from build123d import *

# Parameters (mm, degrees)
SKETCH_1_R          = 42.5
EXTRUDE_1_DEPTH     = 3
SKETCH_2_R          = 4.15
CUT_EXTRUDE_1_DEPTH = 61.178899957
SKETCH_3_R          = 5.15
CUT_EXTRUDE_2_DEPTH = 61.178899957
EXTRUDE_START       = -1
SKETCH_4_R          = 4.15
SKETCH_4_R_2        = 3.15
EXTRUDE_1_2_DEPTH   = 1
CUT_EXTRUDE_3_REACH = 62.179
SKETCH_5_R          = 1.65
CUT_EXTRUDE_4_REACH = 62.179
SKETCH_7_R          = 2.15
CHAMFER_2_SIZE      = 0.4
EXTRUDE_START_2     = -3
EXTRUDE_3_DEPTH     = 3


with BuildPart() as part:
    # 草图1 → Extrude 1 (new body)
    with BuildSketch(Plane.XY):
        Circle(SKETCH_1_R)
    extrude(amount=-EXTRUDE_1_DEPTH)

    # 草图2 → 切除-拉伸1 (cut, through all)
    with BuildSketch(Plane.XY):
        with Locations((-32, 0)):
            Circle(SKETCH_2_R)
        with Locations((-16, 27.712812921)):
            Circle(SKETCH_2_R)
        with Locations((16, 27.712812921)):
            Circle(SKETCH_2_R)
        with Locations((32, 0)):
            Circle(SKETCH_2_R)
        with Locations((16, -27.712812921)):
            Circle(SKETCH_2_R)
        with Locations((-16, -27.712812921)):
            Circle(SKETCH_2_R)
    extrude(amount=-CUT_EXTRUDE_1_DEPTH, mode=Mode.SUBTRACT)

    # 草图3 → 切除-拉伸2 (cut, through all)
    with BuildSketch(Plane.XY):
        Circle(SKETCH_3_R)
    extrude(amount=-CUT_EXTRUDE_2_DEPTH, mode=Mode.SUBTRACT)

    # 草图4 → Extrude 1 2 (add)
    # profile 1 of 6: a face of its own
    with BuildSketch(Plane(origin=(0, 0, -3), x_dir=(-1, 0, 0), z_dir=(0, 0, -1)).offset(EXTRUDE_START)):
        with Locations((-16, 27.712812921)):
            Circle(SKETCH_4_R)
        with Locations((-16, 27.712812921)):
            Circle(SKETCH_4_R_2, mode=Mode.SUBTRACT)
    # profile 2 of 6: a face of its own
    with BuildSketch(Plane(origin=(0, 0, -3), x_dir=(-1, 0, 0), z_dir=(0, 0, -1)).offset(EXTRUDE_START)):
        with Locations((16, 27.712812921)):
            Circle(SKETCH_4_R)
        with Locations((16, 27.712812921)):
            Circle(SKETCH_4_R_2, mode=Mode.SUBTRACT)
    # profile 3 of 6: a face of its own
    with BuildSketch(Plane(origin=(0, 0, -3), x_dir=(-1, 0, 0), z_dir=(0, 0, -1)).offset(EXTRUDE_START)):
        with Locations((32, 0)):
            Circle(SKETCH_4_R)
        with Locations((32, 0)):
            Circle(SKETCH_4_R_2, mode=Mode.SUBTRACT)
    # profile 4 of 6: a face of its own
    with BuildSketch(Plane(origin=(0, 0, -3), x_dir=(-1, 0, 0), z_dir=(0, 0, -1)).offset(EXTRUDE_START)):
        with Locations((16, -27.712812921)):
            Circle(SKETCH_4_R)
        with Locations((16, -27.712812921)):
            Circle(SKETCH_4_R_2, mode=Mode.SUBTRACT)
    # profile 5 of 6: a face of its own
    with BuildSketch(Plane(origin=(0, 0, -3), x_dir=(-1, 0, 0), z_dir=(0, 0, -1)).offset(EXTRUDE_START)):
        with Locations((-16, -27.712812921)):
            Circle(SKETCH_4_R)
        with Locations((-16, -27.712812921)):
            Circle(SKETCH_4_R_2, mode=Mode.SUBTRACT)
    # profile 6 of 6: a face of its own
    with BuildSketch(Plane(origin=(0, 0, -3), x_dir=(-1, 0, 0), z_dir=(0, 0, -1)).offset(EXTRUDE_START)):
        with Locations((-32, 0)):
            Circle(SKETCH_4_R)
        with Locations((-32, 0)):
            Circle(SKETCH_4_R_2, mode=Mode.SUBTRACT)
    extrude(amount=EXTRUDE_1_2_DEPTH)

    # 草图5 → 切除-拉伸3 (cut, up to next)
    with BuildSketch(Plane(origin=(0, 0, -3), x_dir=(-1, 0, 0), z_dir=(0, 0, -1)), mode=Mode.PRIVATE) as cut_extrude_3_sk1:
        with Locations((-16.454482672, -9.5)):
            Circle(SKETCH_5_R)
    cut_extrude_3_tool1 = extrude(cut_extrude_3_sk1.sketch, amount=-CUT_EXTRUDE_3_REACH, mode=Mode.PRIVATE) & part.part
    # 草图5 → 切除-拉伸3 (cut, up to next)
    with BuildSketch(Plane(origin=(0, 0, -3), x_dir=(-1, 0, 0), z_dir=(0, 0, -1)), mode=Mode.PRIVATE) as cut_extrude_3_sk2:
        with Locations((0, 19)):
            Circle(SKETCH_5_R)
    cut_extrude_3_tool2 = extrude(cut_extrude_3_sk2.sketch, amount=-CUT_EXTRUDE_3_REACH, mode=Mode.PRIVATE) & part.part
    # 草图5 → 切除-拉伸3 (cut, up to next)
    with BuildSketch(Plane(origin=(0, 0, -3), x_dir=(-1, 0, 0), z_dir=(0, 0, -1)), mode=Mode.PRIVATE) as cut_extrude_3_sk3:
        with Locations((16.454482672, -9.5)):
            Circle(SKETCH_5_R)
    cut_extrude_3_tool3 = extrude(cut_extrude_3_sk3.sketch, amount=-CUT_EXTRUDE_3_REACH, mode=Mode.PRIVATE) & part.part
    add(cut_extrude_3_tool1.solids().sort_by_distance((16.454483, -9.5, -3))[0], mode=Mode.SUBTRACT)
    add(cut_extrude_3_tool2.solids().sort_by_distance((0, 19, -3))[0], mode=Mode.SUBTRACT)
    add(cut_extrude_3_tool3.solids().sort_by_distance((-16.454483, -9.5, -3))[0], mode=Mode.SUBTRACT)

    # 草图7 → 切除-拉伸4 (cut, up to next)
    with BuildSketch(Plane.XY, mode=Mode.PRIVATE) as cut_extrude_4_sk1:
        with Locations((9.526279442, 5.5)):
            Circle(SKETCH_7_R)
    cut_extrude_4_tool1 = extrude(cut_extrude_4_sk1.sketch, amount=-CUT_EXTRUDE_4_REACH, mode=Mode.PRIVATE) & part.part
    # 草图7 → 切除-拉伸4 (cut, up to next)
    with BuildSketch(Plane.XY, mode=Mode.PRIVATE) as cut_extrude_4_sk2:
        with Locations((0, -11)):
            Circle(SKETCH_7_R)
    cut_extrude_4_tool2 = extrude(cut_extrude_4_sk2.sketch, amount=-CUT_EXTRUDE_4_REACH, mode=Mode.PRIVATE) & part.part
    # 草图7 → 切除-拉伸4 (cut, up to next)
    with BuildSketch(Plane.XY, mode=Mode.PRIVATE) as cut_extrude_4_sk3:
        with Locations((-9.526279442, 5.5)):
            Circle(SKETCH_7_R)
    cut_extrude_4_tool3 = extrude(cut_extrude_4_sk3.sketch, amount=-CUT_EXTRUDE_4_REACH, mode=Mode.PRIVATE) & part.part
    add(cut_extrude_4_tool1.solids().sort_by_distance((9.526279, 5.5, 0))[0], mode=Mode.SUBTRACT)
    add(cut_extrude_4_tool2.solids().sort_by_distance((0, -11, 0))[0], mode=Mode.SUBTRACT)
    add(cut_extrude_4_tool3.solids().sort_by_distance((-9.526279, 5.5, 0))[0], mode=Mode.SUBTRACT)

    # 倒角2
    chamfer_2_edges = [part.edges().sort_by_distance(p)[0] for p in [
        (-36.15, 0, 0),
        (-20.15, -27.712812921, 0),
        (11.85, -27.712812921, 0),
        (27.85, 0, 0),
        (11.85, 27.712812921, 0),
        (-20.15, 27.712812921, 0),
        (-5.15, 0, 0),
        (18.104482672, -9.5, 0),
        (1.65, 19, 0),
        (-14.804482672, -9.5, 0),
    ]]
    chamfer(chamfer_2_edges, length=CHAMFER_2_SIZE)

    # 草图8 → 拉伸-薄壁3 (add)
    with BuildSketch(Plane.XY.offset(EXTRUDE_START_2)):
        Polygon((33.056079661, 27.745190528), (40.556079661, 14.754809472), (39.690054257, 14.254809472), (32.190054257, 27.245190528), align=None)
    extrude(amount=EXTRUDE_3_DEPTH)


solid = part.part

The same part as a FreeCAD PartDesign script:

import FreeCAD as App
import Part
import Sketcher
Q = App.Units.Quantity


def edges_at(feature, points):
    """Names of the edges that pass closest to the given points."""
    edges = feature.Shape.Edges
    near = lambda p: min(range(len(edges)), key=lambda i: edges[i].distToShape(Part.Vertex(*p))[0])
    return sorted({f"Edge{near(p) + 1}" for p in points})


def add_polygon(sketch, points):
    """Adds a closed chain of lines whose ends are joined by coincident constraints."""
    first, n = sketch.GeometryCount, len(points)
    for a, b in zip(points, points[1:] + points[:1]):
        sketch.addGeometry(Part.LineSegment(App.Vector(*a, 0), App.Vector(*b, 0)), False)
    for i in range(n):
        sketch.addConstraint(Sketcher.Constraint("Coincident", first + i, 2, first + (i + 1) % n, 1))

doc = App.newDocument("Part")
body = doc.addObject("PartDesign::Body", "Body")

# Sketch on XY plane
sketch1 = body.newObject("Sketcher::SketchObject", "Sketch")
sketch1.AttachmentSupport = (doc.getObject("XY_Plane"), [""])
sketch1.MapMode = "FlatFace"
sketch1.addGeometry(Part.Circle(App.Vector(0, 0, 0), App.Vector(0, 0, 1), 42), False)
sketch1.addConstraint([
    Sketcher.Constraint("Coincident", 0, 3, -1, 1),
    Sketcher.Constraint("Diameter", 0, Q("85 mm")),
])
pad1 = body.newObject("PartDesign::Pad", "Pad")
pad1.Profile = sketch1
pad1.Length = 3
pad1.Reversed = True

# Sketch on XY plane
sketch2 = body.newObject("Sketcher::SketchObject", "Sketch001")
sketch2.AttachmentSupport = (doc.getObject("XY_Plane"), [""])
sketch2.MapMode = "FlatFace"
sketch2.addGeometry([
    Part.Circle(App.Vector(-32, 0, 0), App.Vector(0, 0, 1), 4.2),  # 0
    Part.Circle(App.Vector(-16, 27.7, 0), App.Vector(0, 0, 1), 4.2),  # 1
    Part.Circle(App.Vector(16, 27.7, 0), App.Vector(0, 0, 1), 4.2),  # 2
    Part.Circle(App.Vector(32, 0, 0), App.Vector(0, 0, 1), 4.2),  # 3
    Part.Circle(App.Vector(16, -27.7, 0), App.Vector(0, 0, 1), 4.2),  # 4
    Part.Circle(App.Vector(-16, -27.7, 0), App.Vector(0, 0, 1), 4.2),  # 5
], False)
sketch2.addConstraint([
    Sketcher.Constraint("Equal", 0, 1),
    Sketcher.Constraint("Equal", 1, 2),
    Sketcher.Constraint("Equal", 2, 3),
    Sketcher.Constraint("Equal", 3, 4),
    Sketcher.Constraint("Equal", 4, 5),
    Sketcher.Constraint("Symmetric", 0, 3, 3, 3, -1, 1),
    Sketcher.Constraint("Symmetric", 1, 3, 4, 3, -1, 1),
    Sketcher.Constraint("Symmetric", 2, 3, 5, 3, -1, 1),
    Sketcher.Constraint("Symmetric", 1, 3, 2, 3, -2),
    Sketcher.Constraint("PointOnObject", 0, 3, -1),
    Sketcher.Constraint("Diameter", 0, Q("8.3 mm")),
    Sketcher.Constraint("DistanceX", 0, 3, -1, 1, Q("32 mm")),
    Sketcher.Constraint("DistanceX", 1, 3, -1, 1, Q("16 mm")),
    Sketcher.Constraint("DistanceY", -1, 1, 1, 3, Q("27.712813 mm")),
])
pocket1 = body.newObject("PartDesign::Pocket", "Pocket")
pocket1.Profile = sketch2
pocket1.Type = "ThroughAll"

# Sketch on XY plane
sketch3 = body.newObject("Sketcher::SketchObject", "Sketch002")
sketch3.AttachmentSupport = (doc.getObject("XY_Plane"), [""])
sketch3.MapMode = "FlatFace"
sketch3.addGeometry(Part.Circle(App.Vector(0, 0, 0), App.Vector(0, 0, 1), 5), False)
sketch3.addConstraint([
    Sketcher.Constraint("Coincident", 0, 3, -1, 1),
    Sketcher.Constraint("Diameter", 0, Q("10.3 mm")),
])
pocket2 = body.newObject("PartDesign::Pocket", "Pocket001")
pocket2.Profile = sketch3
pocket2.Type = "ThroughAll"

# Sketch on XY plane
sketch4 = body.newObject("Sketcher::SketchObject", "Sketch003")
sketch4.AttachmentSupport = (doc.getObject("XY_Plane"), [""])
sketch4.MapMode = "FlatFace"
sketch4.AttachmentOffset = App.Placement(App.Vector(0, 0, -2), App.Rotation())
sketch4.addGeometry([
    Part.Circle(App.Vector(16, 27.7, 0), App.Vector(0, 0, 1), 4.2),  # 0
    Part.Circle(App.Vector(16, 27.7, 0), App.Vector(0, 0, 1), 3.1),  # 1
    Part.Circle(App.Vector(-16, 27.7, 0), App.Vector(0, 0, 1), 4.2),  # 2
    Part.Circle(App.Vector(-16, 27.7, 0), App.Vector(0, 0, 1), 3.1),  # 3
    Part.Circle(App.Vector(-32, 0, 0), App.Vector(0, 0, 1), 4.2),  # 4
    Part.Circle(App.Vector(-32, 0, 0), App.Vector(0, 0, 1), 3.1),  # 5
    Part.Circle(App.Vector(-16, -27.7, 0), App.Vector(0, 0, 1), 4.2),  # 6
    Part.Circle(App.Vector(-16, -27.7, 0), App.Vector(0, 0, 1), 3.1),  # 7
    Part.Circle(App.Vector(16, -27.7, 0), App.Vector(0, 0, 1), 4.2),  # 8
    Part.Circle(App.Vector(16, -27.7, 0), App.Vector(0, 0, 1), 3.1),  # 9
    Part.Circle(App.Vector(32, 0, 0), App.Vector(0, 0, 1), 4.2),  # 10
    Part.Circle(App.Vector(32, 0, 0), App.Vector(0, 0, 1), 3.1),  # 11
], False)
sketch4.addConstraint([
    Sketcher.Constraint("Coincident", 1, 3, 0, 3),
    Sketcher.Constraint("Coincident", 3, 3, 2, 3),
    Sketcher.Constraint("Coincident", 5, 3, 4, 3),
    Sketcher.Constraint("Coincident", 7, 3, 6, 3),
    Sketcher.Constraint("Coincident", 9, 3, 8, 3),
    Sketcher.Constraint("Coincident", 11, 3, 10, 3),
    Sketcher.Constraint("Equal", 0, 2),
    Sketcher.Constraint("Equal", 1, 3),
    Sketcher.Constraint("Equal", 2, 4),
    Sketcher.Constraint("Equal", 3, 5),
    Sketcher.Constraint("Equal", 4, 6),
    Sketcher.Constraint("Equal", 5, 7),
    Sketcher.Constraint("Equal", 6, 8),
    Sketcher.Constraint("Equal", 7, 9),
    Sketcher.Constraint("Equal", 8, 10),
    Sketcher.Constraint("Equal", 9, 11),
    Sketcher.Constraint("Symmetric", 0, 3, 6, 3, -1, 1),
    Sketcher.Constraint("Symmetric", 2, 3, 8, 3, -1, 1),
    Sketcher.Constraint("Symmetric", 4, 3, 10, 3, -1, 1),
    Sketcher.Constraint("Symmetric", 0, 3, 2, 3, -2),
    Sketcher.Constraint("PointOnObject", 4, 3, -1),
    Sketcher.Constraint("Diameter", 0, Q("8.3 mm")),
    Sketcher.Constraint("Diameter", 1, Q("6.3 mm")),
    Sketcher.Constraint("DistanceX", -1, 1, 0, 3, Q("16 mm")),
    Sketcher.Constraint("DistanceX", 4, 3, -1, 1, Q("32 mm")),
    Sketcher.Constraint("DistanceY", -1, 1, 0, 3, Q("27.712813 mm")),
])
pad2 = body.newObject("PartDesign::Pad", "Pad001")
pad2.Profile = sketch4
pad2.Length = 1
pad2.Reversed = True

# Sketch on XY plane
sketch5 = body.newObject("Sketcher::SketchObject", "Sketch004")
sketch5.AttachmentSupport = (doc.getObject("XY_Plane"), [""])
sketch5.MapMode = "FlatFace"
sketch5.AttachmentOffset = App.Placement(App.Vector(0, 0, -3), App.Rotation())
sketch5.addGeometry(Part.Circle(App.Vector(16.5, -9.5, 0), App.Vector(0, 0, 1), 1.6), False)
sketch5.addConstraint([
    Sketcher.Constraint("Diameter", 0, Q("3.3 mm")),
    Sketcher.Constraint("DistanceY", 0, 3, -1, 1, Q("9.5 mm")),
    Sketcher.Constraint("DistanceX", -1, 1, 0, 3, Q("16.454483 mm")),
])
pocket3 = body.newObject("PartDesign::Pocket", "Pocket002")
pocket3.Profile = sketch5
pocket3.Type = "UpToFirst"
pocket3.Reversed = True

# Sketch on XY plane
sketch6 = body.newObject("Sketcher::SketchObject", "Sketch005")
sketch6.AttachmentSupport = (doc.getObject("XY_Plane"), [""])
sketch6.MapMode = "FlatFace"
sketch6.AttachmentOffset = App.Placement(App.Vector(0, 0, -3), App.Rotation())
sketch6.addGeometry(Part.Circle(App.Vector(0, 19, 0), App.Vector(0, 0, 1), 1.6), False)
sketch6.addConstraint([
    Sketcher.Constraint("PointOnObject", 0, 3, -2),
    Sketcher.Constraint("Diameter", 0, Q("3.3 mm")),
    Sketcher.Constraint("DistanceY", -1, 1, 0, 3, Q("19 mm")),
])
pocket4 = body.newObject("PartDesign::Pocket", "Pocket003")
pocket4.Profile = sketch6
pocket4.Type = "UpToFirst"
pocket4.Reversed = True

# Sketch on XY plane
sketch7 = body.newObject("Sketcher::SketchObject", "Sketch006")
sketch7.AttachmentSupport = (doc.getObject("XY_Plane"), [""])
sketch7.MapMode = "FlatFace"
sketch7.AttachmentOffset = App.Placement(App.Vector(0, 0, -3), App.Rotation())
sketch7.addGeometry(Part.Circle(App.Vector(-16.5, -9.5, 0), App.Vector(0, 0, 1), 1.6), False)
sketch7.addConstraint([
    Sketcher.Constraint("Diameter", 0, Q("3.3 mm")),
    Sketcher.Constraint("DistanceY", 0, 3, -1, 1, Q("9.5 mm")),
    Sketcher.Constraint("DistanceX", 0, 3, -1, 1, Q("16.454483 mm")),
])
pocket5 = body.newObject("PartDesign::Pocket", "Pocket004")
pocket5.Profile = sketch7
pocket5.Type = "UpToFirst"
pocket5.Reversed = True

# Sketch on XY plane
sketch8 = body.newObject("Sketcher::SketchObject", "Sketch007")
sketch8.AttachmentSupport = (doc.getObject("XY_Plane"), [""])
sketch8.MapMode = "FlatFace"
sketch8.addGeometry(Part.Circle(App.Vector(9.5, 5.5, 0), App.Vector(0, 0, 1), 2.1), False)
sketch8.addConstraint([
    Sketcher.Constraint("Diameter", 0, Q("4.3 mm")),
    Sketcher.Constraint("DistanceY", -1, 1, 0, 3, Q("5.5 mm")),
    Sketcher.Constraint("DistanceX", -1, 1, 0, 3, Q("9.526279 mm")),
])
pocket6 = body.newObject("PartDesign::Pocket", "Pocket005")
pocket6.Profile = sketch8
pocket6.Type = "UpToFirst"

# Sketch on XY plane
sketch9 = body.newObject("Sketcher::SketchObject", "Sketch008")
sketch9.AttachmentSupport = (doc.getObject("XY_Plane"), [""])
sketch9.MapMode = "FlatFace"
sketch9.addGeometry(Part.Circle(App.Vector(0, -11, 0), App.Vector(0, 0, 1), 2.1), False)
sketch9.addConstraint([
    Sketcher.Constraint("PointOnObject", 0, 3, -2),
    Sketcher.Constraint("Diameter", 0, Q("4.3 mm")),
    Sketcher.Constraint("DistanceY", 0, 3, -1, 1, Q("11 mm")),
])
pocket7 = body.newObject("PartDesign::Pocket", "Pocket006")
pocket7.Profile = sketch9
pocket7.Type = "UpToFirst"

# Sketch on XY plane
sketch10 = body.newObject("Sketcher::SketchObject", "Sketch009")
sketch10.AttachmentSupport = (doc.getObject("XY_Plane"), [""])
sketch10.MapMode = "FlatFace"
sketch10.addGeometry(Part.Circle(App.Vector(-9.5, 5.5, 0), App.Vector(0, 0, 1), 2.1), False)
sketch10.addConstraint([
    Sketcher.Constraint("Diameter", 0, Q("4.3 mm")),
    Sketcher.Constraint("DistanceY", -1, 1, 0, 3, Q("5.5 mm")),
    Sketcher.Constraint("DistanceX", 0, 3, -1, 1, Q("9.526279 mm")),
])
pocket8 = body.newObject("PartDesign::Pocket", "Pocket007")
pocket8.Profile = sketch10
pocket8.Type = "UpToFirst"
doc.recompute()

chamfer = body.newObject("PartDesign::Chamfer", "Chamfer")
chamfer.Base = (pocket8, edges_at(pocket8, [
    (-36.15, 0, 0),
    (-20.15, -27.713, 0),
    (11.85, -27.713, 0),
    (27.85, 0, 0),
    (11.85, 27.713, 0),
    (-20.15, 27.713, 0),
    (-5.15, 0, 0),
    (18.104, -9.5, 0),
    (1.65, 19, 0),
    (-14.804, -9.5, 0),
]))
chamfer.Size = 0.4

# Sketch on XY plane
sketch11 = body.newObject("Sketcher::SketchObject", "Sketch010")
sketch11.AttachmentSupport = (doc.getObject("XY_Plane"), [""])
sketch11.MapMode = "FlatFace"
sketch11.AttachmentOffset = App.Placement(App.Vector(0, 0, -3), App.Rotation())
add_polygon(sketch11, [(40.6, 14.8), (33.1, 27.7), (32.2, 27.2), (39.7, 14.3)])  # lines 0-3
sketch11.addConstraint([
    Sketcher.Constraint("Perpendicular", 0, 1),
    Sketcher.Constraint("Perpendicular", 1, 2),
    Sketcher.Constraint("Perpendicular", 2, 3),
    Sketcher.Constraint("Angle", 0, Q("120 deg")),
    Sketcher.Constraint("Distance", 0, Q("15 mm")),
    Sketcher.Constraint("Distance", 1, Q("1 mm")),
    Sketcher.Constraint("DistanceX", -1, 1, 0, 2, Q("33.05608 mm")),
    Sketcher.Constraint("DistanceY", -1, 1, 0, 2, Q("27.745191 mm")),
])
pad3 = body.newObject("PartDesign::Pad", "Pad002")
pad3.Profile = sketch11
pad3.Length = 3

doc.recompute()
